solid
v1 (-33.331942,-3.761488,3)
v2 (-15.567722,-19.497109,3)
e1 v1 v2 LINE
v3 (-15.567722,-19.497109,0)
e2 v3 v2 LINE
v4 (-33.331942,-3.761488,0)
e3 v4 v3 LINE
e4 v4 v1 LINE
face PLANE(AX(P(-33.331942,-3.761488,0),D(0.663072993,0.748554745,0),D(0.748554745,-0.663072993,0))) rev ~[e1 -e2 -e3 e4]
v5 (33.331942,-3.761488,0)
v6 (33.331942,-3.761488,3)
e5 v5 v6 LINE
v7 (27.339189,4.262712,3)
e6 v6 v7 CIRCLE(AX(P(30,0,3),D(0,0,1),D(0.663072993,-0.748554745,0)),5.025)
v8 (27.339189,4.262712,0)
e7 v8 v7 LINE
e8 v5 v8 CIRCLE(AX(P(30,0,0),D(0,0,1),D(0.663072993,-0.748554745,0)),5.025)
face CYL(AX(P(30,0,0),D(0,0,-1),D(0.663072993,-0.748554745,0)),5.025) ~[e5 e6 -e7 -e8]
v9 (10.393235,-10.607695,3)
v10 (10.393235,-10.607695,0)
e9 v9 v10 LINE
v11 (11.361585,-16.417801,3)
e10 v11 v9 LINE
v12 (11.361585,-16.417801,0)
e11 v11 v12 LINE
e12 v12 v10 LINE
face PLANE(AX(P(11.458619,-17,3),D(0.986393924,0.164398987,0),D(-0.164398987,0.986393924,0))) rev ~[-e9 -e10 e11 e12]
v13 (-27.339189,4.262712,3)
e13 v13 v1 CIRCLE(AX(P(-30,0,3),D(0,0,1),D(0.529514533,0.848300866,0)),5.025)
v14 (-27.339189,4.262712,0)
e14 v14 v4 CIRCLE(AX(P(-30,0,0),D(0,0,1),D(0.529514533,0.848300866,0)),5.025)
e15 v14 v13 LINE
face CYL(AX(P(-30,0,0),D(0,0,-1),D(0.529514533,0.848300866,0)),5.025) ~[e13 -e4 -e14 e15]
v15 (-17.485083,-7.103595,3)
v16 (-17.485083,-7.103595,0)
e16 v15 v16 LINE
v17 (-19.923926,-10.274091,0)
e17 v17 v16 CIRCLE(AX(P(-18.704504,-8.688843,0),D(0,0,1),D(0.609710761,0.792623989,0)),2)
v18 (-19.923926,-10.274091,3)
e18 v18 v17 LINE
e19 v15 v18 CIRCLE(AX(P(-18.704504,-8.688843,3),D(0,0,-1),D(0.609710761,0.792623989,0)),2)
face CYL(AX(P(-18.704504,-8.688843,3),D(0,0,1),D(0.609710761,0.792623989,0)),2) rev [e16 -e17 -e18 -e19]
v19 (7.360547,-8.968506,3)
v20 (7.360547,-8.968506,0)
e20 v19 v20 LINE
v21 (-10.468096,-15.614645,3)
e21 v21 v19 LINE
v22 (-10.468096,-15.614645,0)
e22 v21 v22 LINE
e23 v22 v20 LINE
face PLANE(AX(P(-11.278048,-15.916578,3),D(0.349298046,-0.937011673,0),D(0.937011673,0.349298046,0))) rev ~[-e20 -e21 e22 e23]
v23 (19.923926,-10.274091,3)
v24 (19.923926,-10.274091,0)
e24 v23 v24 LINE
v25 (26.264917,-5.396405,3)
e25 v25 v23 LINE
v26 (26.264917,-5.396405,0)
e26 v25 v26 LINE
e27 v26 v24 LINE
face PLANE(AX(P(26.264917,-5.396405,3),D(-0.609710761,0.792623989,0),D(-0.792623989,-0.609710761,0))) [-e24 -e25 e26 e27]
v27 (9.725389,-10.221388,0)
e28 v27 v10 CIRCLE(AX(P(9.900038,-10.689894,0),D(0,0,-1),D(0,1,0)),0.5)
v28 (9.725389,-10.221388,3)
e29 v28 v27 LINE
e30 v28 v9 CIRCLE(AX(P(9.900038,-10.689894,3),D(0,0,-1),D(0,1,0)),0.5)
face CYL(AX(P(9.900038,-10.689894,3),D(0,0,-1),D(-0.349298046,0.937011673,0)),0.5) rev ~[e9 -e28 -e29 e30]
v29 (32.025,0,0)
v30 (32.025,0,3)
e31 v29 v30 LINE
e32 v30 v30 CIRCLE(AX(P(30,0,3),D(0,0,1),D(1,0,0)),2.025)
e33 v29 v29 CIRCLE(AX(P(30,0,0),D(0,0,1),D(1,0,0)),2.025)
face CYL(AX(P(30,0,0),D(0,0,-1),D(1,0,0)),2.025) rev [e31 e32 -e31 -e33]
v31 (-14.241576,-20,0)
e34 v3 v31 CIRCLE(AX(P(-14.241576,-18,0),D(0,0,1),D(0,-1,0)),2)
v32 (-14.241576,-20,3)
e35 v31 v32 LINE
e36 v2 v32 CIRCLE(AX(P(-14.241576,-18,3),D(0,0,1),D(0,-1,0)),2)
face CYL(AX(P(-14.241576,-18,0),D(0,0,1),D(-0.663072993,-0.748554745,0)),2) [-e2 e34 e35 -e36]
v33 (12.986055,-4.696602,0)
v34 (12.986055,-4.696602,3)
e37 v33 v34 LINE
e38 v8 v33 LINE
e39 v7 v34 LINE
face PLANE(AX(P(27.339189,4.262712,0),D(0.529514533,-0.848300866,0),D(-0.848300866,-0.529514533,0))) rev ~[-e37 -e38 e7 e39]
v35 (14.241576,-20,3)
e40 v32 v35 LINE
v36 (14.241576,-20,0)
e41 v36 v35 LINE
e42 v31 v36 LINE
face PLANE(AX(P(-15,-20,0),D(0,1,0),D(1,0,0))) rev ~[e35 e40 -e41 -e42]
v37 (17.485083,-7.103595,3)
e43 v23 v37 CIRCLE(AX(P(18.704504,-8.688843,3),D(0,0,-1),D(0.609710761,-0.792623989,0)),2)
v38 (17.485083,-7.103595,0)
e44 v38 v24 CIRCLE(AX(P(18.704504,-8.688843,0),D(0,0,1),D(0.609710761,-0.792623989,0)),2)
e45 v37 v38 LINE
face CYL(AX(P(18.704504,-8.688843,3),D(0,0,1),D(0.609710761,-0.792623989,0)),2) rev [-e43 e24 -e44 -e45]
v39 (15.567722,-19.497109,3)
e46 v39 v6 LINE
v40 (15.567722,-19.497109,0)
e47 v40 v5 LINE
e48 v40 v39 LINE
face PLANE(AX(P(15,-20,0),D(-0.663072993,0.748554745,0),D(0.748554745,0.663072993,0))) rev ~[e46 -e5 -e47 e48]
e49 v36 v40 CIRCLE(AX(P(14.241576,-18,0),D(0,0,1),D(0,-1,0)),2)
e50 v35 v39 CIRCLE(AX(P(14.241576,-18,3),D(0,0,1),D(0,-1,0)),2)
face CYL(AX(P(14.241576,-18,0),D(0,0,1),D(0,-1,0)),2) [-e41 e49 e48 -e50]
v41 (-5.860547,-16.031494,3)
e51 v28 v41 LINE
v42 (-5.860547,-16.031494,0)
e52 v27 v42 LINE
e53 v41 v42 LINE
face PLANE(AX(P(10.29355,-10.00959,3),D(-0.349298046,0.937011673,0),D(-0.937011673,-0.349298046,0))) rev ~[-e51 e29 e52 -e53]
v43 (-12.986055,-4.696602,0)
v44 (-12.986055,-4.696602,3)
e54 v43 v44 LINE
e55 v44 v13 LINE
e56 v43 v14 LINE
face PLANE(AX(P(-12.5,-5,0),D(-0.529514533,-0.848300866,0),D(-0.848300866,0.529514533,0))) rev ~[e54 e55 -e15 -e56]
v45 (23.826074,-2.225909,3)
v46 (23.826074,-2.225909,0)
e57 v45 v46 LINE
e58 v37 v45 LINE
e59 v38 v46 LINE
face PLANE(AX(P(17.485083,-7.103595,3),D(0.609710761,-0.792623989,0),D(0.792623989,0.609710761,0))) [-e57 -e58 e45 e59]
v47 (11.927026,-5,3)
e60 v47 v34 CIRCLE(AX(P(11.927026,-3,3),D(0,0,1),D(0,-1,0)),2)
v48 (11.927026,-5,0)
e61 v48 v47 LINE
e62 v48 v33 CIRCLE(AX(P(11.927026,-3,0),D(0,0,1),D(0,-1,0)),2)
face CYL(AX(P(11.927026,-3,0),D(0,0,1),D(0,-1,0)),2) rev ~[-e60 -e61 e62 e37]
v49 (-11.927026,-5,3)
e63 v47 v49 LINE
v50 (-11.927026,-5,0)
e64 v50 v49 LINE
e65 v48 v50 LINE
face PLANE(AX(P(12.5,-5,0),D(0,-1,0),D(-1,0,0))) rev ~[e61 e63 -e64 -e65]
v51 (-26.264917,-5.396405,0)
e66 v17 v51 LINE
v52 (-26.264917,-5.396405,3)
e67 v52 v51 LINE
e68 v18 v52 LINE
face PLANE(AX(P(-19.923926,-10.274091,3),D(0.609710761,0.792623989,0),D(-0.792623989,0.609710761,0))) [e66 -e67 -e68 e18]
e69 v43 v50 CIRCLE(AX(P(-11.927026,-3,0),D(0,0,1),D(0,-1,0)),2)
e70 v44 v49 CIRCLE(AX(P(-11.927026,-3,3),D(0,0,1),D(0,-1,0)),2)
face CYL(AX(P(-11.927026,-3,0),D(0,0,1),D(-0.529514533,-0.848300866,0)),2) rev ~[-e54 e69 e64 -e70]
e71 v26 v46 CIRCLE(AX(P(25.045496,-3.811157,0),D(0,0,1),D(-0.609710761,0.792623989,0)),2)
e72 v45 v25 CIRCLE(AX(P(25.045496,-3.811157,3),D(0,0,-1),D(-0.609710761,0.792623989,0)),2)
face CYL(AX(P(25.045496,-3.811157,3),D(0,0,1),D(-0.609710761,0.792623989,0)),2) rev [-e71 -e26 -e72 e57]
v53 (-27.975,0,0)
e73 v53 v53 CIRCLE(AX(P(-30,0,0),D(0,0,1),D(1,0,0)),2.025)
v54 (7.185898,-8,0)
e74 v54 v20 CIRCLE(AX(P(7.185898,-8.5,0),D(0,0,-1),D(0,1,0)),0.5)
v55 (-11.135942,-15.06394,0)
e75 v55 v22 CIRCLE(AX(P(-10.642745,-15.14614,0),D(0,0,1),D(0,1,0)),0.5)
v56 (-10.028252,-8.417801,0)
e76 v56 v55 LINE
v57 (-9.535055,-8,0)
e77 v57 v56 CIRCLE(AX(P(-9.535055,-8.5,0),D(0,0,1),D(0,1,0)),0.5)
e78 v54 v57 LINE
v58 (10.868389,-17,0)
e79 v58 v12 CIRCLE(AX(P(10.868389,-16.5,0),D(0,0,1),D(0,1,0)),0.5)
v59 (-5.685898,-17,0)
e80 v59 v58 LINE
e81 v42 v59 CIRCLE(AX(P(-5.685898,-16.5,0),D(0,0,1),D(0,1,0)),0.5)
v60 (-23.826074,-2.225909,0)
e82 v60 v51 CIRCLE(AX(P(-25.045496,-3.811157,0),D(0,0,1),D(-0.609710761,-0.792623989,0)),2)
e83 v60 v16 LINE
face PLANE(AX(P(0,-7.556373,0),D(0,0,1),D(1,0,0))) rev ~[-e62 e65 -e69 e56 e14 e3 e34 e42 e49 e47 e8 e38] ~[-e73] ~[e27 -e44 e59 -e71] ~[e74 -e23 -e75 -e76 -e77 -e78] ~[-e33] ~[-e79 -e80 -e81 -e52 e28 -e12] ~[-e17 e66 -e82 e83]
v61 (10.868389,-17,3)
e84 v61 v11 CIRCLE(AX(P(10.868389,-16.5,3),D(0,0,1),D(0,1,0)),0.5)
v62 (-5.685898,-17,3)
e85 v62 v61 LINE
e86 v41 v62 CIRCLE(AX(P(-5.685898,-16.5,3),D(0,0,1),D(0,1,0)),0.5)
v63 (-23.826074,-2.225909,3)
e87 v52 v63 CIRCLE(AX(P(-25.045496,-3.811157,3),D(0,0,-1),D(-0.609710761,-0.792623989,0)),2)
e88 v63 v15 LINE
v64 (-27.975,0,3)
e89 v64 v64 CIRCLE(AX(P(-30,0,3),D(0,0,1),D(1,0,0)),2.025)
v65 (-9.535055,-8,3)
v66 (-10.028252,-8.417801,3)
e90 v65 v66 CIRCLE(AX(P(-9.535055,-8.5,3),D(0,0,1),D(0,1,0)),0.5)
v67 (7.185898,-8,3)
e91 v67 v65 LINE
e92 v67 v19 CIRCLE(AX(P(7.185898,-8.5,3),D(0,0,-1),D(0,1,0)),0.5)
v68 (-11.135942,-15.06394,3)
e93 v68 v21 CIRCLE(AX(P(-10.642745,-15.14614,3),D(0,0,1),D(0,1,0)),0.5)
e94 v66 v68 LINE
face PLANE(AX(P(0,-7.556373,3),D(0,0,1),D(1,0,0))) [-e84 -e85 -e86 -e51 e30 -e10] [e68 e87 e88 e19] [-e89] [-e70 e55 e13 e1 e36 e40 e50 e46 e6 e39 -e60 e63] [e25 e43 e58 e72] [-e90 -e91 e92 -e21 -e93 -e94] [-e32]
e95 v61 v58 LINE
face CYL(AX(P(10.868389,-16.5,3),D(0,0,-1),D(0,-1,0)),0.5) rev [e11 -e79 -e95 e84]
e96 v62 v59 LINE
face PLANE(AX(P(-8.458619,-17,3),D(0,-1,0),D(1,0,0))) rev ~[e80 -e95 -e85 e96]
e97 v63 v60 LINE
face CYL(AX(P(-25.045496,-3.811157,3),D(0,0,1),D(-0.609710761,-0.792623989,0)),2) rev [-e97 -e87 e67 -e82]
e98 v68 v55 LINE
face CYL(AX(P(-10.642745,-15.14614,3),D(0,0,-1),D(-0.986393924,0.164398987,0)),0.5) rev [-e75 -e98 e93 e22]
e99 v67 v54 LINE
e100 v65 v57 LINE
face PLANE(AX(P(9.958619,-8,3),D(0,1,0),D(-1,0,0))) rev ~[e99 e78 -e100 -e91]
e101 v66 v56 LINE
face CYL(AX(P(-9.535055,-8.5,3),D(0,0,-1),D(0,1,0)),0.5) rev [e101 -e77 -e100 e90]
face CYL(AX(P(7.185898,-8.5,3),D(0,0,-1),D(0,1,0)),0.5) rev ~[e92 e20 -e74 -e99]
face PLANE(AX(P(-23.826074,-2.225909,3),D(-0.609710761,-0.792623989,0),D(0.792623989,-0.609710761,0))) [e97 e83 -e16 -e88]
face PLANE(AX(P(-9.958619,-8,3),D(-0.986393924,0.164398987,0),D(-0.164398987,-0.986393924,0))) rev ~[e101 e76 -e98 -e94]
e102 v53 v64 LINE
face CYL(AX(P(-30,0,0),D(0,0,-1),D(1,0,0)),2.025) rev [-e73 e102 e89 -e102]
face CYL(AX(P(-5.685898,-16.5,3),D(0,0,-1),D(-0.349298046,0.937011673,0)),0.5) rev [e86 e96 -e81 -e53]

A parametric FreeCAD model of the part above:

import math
import FreeCAD as App
import Part
import Sketcher
Q = App.Units.Quantity


def edges_at(feature, points):
    """Names of the edges that pass closest to the given points."""
    edges = feature.Shape.Edges
    near = lambda p: min(range(len(edges)), key=lambda i: edges[i].distToShape(Part.Vertex(*p))[0])
    return sorted({f"Edge{near(p) + 1}" for p in points})

doc = App.newDocument("Part")
body = doc.addObject("PartDesign::Body", "Body")

sketch1 = body.newObject("Sketcher::SketchObject", "Sketch")
sketch1.AttachmentSupport = (doc.getObject("XY_Plane"), [""])
sketch1.MapMode = "FlatFace"
sketch1.addGeometry([
    Part.LineSegment(App.Vector(-12.5, -5, 0), App.Vector(-27.339189, 4.262712, 0)),
    Part.ArcOfCircle(Part.Circle(App.Vector(-30, 0, 0), App.Vector(0, 0, 1), 5.025), math.radians(58.02734), math.radians(228.46534)),
    Part.LineSegment(App.Vector(-33.331942, -3.761488, 0), App.Vector(-15, -20, 0)),
    Part.LineSegment(App.Vector(-15, -20, 0), App.Vector(15, -20, 0)),
    Part.LineSegment(App.Vector(15, -20, 0), App.Vector(33.331942, -3.761488, 0)),
    Part.ArcOfCircle(Part.Circle(App.Vector(30, 0, 0), App.Vector(0, 0, 1), 5.025), math.radians(-48.46534), math.radians(121.97266)),
    Part.LineSegment(App.Vector(27.339189, 4.262712, 0), App.Vector(12.5, -5, 0)),
    Part.LineSegment(App.Vector(12.5, -5, 0), App.Vector(-12.5, -5, 0)),
    Part.Circle(App.Vector(-30, 0, 0), App.Vector(0, 0, 1), 2.025),
    Part.Circle(App.Vector(30, 0, 0), App.Vector(0, 0, 1), 2.025),
], False)
sketch1.addConstraint([
    Sketcher.Constraint("Tangent", 0, 2, 1, 1),
    Sketcher.Constraint("Tangent", 1, 2, 2, 1),
    Sketcher.Constraint("Coincident", 2, 2, 3, 1),
    Sketcher.Constraint("Coincident", 3, 2, 4, 1),
    Sketcher.Constraint("Tangent", 4, 2, 5, 1),
    Sketcher.Constraint("Tangent", 5, 2, 6, 1),
    Sketcher.Constraint("Coincident", 6, 2, 7, 1),
    Sketcher.Constraint("Coincident", 7, 2, 0, 1),
    Sketcher.Constraint("Horizontal", 3),
    Sketcher.Constraint("Horizontal", 7),
    Sketcher.Constraint("Coincident", 8, 3, 1, 3),
    Sketcher.Constraint("Coincident", 9, 3, 5, 3),
    Sketcher.Constraint("Equal", 1, 5),
    Sketcher.Constraint("Equal", 8, 9),
    Sketcher.Constraint("Symmetric", 1, 3, 5, 3, -1, 1),
    Sketcher.Constraint("Symmetric", 1, 2, 4, 2, -2),
    Sketcher.Constraint("Horizontal", 0, 2, 5, 2),
    Sketcher.Constraint("Diameter", 8, Q("4.05 mm")),
    Sketcher.Constraint("DistanceX", 3, 1, 3, 2, Q("30 mm")),
    Sketcher.Constraint("DistanceX", 7, 2, 7, 1, Q("25 mm")),
    Sketcher.Constraint("DistanceX", 1, 3, -1, 1, Q("30 mm")),
    Sketcher.Constraint("DistanceY", 2, 2, -1, 1, Q("20 mm")),
    Sketcher.Constraint("DistanceY", 6, 2, -1, 1, Q("5 mm")),
    Sketcher.Constraint("Radius", 1, Q("5.025 mm")),
])
pad1 = body.newObject("PartDesign::Pad", "Pad")
pad1.Profile = sketch1
pad1.Length = 3

sketch2 = body.newObject("Sketcher::SketchObject", "Sketch001")
sketch2.AttachmentSupport = (doc.getObject("XY_Plane"), [""])
sketch2.MapMode = "FlatFace"
sketch2.AttachmentOffset = App.Placement(App.Vector(0, 0, 3), App.Rotation())
sketch2.addGeometry([
    Part.LineSegment(App.Vector(9.958619, -8, 0), App.Vector(-9.958619, -8, 0)),
    Part.LineSegment(App.Vector(-9.958619, -8, 0), App.Vector(-11.278048, -15.916578, 0)),
    Part.LineSegment(App.Vector(-11.278048, -15.916578, 0), App.Vector(9.958619, -8, 0)),
    Part.LineSegment(App.Vector(10.29355, -10.00959, 0), App.Vector(-8.458619, -17, 0)),
    Part.LineSegment(App.Vector(-8.458619, -17, 0), App.Vector(11.458619, -17, 0)),
    Part.LineSegment(App.Vector(11.458619, -17, 0), App.Vector(10.29355, -10.00959, 0)),
    Part.LineSegment(App.Vector(23.826074, -2.225909, 0), App.Vector(17.485083, -7.103595, 0)),
    Part.ArcOfCircle(Part.Circle(App.Vector(18.704504, -8.688843, 0), App.Vector(0, 0, 1), 2), math.radians(127.568592), math.radians(307.568592)),
    Part.LineSegment(App.Vector(19.923926, -10.274091, 0), App.Vector(26.264917, -5.396405, 0)),
    Part.ArcOfCircle(Part.Circle(App.Vector(25.045496, -3.811157, 0), App.Vector(0, 0, 1), 2), math.radians(-52.431408), math.radians(127.568592)),
    Part.LineSegment(App.Vector(-17.485083, -7.103595, 0), App.Vector(-23.826074, -2.225909, 0)),
    Part.ArcOfCircle(Part.Circle(App.Vector(-25.045496, -3.811157, 0), App.Vector(0, 0, 1), 2), math.radians(52.431408), math.radians(232.431408)),
    Part.LineSegment(App.Vector(-26.264917, -5.396405, 0), App.Vector(-19.923926, -10.274091, 0)),
    Part.ArcOfCircle(Part.Circle(App.Vector(-18.704504, -8.688843, 0), App.Vector(0, 0, 1), 2), math.radians(-127.568592), math.radians(52.431408)),
], False)
sketch2.addConstraint([
    Sketcher.Constraint("Coincident", 0, 2, 1, 1),
    Sketcher.Constraint("Coincident", 1, 2, 2, 1),
    Sketcher.Constraint("Coincident", 2, 2, 0, 1),
    Sketcher.Constraint("Coincident", 3, 2, 4, 1),
    Sketcher.Constraint("Coincident", 4, 2, 5, 1),
    Sketcher.Constraint("Coincident", 5, 2, 3, 1),
    Sketcher.Constraint("Tangent", 6, 2, 7, 1),
    Sketcher.Constraint("Tangent", 7, 2, 8, 1),
    Sketcher.Constraint("Tangent", 8, 2, 9, 1),
    Sketcher.Constraint("Tangent", 9, 2, 6, 1),
    Sketcher.Constraint("Tangent", 10, 2, 11, 1),
    Sketcher.Constraint("Tangent", 11, 2, 12, 1),
    Sketcher.Constraint("Tangent", 12, 2, 13, 1),
    Sketcher.Constraint("Tangent", 13, 2, 10, 1),
    Sketcher.Constraint("Horizontal", 0),
    Sketcher.Constraint("Horizontal", 4),
    Sketcher.Constraint("Equal", 7, 9),
    Sketcher.Constraint("Equal", 9, 11),
    Sketcher.Constraint("Equal", 11, 13),
    Sketcher.Constraint("Symmetric", 9, 3, 11, 3, -2),
    Sketcher.Constraint("Symmetric", 7, 3, 13, 3, -2),
    Sketcher.Constraint("Parallel", 2, 3),
    Sketcher.Constraint("Equal", 0, 4),
    Sketcher.Constraint("Radius", 7, Q("2 mm")),
    Sketcher.Constraint("Distance", 6, Q("8 mm")),
    Sketcher.Constraint("DistanceY", 0, 2, -1, 1, Q("8 mm")),
    Sketcher.Constraint("DistanceY", 3, 2, -1, 1, Q("17 mm")),
    Sketcher.Constraint("DistanceX", 0, 2, 3, 2, Q("1.5 mm")),
    Sketcher.Constraint("DistanceX", 11, 3, 7, 3, Q("43.75 mm")),
    Sketcher.Constraint("DistanceY", 7, 2, 5, 2, Q("0.264501 mm")),
    Sketcher.Constraint("DistanceX", 2, 2, 8, 2, Q("16.306299 mm")),
    Sketcher.Constraint("DistanceX", 11, 2, 0, 2, Q("16.306299 mm")),
    Sketcher.Constraint("Distance", 2, Q("22.66425 mm")),
    Sketcher.Constraint("DistanceX", 0, 2, 0, 1, Q("19.917237 mm")),
    Sketcher.Constraint("DistanceX", 1, 2, -1, 1, Q("11.278048 mm")),
    Sketcher.Constraint("DistanceX", -1, 1, 5, 2, Q("10.29355 mm")),
])
pocket1 = body.newObject("PartDesign::Pocket", "Pocket")
pocket1.Profile = sketch2
pocket1.Length = 13
doc.recompute()

fillet = body.newObject("PartDesign::Fillet", "Fillet")
fillet.Base = (pocket1, edges_at(pocket1, [
    (11.459, -17, 1.5),
    (-8.459, -17, 1.5),
    (10.294, -10.01, 1.5),
    (-11.278, -15.917, 1.5),
    (-9.959, -8, 1.5),
    (9.959, -8, 1.5),
]))
fillet.Radius = 0.5
doc.recompute()

fillet2 = body.newObject("PartDesign::Fillet", "Fillet001")
fillet2.Base = (fillet, edges_at(fillet, [
    (-12.5, -5, 1.5),
    (12.5, -5, 1.5),
    (15, -20, 1.5),
    (-15, -20, 1.5),
]))
fillet2.Radius = 2

doc.recompute()
